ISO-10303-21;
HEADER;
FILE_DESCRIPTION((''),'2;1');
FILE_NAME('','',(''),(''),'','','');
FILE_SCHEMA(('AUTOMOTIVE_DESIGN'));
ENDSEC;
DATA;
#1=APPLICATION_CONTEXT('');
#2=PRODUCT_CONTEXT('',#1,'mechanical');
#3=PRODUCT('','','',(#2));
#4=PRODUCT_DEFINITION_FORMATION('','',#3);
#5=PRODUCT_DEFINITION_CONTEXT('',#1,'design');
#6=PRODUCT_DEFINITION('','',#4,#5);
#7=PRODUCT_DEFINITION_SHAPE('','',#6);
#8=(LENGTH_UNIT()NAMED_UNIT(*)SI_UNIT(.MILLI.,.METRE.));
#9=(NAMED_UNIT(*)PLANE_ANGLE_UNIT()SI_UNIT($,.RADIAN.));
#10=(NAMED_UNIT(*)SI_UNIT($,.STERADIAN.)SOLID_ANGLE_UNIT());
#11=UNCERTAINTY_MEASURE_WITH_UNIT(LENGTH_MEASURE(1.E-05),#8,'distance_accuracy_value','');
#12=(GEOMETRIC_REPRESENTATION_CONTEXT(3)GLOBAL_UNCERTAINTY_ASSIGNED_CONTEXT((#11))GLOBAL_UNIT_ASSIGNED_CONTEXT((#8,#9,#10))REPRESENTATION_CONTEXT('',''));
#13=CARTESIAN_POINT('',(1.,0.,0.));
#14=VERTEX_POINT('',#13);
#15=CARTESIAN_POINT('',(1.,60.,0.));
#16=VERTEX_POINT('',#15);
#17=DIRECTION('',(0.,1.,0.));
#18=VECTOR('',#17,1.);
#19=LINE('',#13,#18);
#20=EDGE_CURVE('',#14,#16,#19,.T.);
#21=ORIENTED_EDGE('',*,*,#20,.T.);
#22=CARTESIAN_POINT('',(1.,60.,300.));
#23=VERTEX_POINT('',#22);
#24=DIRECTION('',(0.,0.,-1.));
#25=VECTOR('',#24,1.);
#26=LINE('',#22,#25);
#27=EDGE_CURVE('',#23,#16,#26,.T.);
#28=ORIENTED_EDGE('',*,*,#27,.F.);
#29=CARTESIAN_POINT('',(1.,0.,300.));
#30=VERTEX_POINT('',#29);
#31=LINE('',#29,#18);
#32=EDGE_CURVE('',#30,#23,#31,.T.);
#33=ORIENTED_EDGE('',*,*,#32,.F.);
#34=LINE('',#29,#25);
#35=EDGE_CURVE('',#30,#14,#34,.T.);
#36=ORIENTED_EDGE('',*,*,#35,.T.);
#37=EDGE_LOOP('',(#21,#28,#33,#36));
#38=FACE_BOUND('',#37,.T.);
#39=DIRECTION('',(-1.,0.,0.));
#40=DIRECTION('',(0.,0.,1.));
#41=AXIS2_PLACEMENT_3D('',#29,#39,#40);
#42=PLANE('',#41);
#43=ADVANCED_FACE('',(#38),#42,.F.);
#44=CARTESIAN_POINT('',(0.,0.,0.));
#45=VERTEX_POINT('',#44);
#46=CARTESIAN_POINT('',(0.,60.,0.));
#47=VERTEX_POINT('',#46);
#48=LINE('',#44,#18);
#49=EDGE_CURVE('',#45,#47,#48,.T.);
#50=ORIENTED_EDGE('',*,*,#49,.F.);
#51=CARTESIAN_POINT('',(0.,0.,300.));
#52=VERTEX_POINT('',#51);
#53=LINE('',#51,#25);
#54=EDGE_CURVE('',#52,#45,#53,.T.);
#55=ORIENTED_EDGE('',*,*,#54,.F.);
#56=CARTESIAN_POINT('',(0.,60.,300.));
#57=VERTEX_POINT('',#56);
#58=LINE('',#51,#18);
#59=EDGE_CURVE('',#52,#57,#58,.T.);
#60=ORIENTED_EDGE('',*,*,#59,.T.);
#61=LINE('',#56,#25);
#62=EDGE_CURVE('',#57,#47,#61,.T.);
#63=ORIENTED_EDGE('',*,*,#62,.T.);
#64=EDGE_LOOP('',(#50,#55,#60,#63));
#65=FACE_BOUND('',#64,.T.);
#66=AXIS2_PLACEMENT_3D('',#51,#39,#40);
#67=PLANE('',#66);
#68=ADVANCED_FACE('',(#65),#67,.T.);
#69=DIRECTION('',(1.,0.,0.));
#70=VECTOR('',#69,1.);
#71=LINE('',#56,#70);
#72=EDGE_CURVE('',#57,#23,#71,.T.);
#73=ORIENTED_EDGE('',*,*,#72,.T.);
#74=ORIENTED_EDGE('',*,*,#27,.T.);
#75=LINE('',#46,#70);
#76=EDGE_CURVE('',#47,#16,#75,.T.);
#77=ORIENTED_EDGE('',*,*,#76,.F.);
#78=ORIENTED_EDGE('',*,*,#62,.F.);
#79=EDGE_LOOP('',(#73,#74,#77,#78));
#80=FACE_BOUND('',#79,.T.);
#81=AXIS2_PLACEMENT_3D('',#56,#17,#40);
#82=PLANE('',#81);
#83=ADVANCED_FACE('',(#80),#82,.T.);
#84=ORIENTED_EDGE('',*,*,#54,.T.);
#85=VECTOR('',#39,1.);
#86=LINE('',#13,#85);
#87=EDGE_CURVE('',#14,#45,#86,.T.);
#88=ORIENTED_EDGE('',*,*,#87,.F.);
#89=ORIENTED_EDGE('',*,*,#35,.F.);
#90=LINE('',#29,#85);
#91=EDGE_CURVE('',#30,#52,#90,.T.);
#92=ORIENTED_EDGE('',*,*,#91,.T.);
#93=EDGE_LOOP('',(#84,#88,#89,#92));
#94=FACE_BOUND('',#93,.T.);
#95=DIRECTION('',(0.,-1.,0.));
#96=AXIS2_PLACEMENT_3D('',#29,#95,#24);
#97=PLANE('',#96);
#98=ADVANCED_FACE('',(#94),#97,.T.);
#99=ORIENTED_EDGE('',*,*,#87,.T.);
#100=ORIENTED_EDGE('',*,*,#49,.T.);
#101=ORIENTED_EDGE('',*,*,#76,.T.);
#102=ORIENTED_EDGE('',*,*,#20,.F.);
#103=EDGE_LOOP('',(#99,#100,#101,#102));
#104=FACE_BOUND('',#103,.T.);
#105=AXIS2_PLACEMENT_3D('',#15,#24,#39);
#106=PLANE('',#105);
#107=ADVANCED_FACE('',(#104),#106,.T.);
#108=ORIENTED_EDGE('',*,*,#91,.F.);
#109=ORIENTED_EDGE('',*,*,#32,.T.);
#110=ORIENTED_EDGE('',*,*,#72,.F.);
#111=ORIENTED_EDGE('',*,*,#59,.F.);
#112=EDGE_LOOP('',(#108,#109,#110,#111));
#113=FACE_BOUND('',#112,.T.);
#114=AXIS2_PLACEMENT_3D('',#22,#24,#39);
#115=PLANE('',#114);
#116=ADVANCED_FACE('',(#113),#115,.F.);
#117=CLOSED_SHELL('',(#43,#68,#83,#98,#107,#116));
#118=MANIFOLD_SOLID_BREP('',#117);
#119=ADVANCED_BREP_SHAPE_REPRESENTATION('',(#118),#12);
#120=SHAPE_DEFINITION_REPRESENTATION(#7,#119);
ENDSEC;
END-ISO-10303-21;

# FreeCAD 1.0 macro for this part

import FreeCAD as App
import Part
import Sketcher
Q = App.Units.Quantity

doc = App.newDocument("Part")
params = doc.addObject("Spreadsheet::Sheet", "Params")
for row, (alias, value) in enumerate([
    ("sketch1_width", "1 mm"),
    ("sketch1_height", "60 mm"),
    ("pad1_length", "300 mm"),
], start=1):
    params.set(f"A{row}", alias)
    params.set(f"B{row}", "=" + value)
    params.setAlias(f"B{row}", alias)

body = doc.addObject("PartDesign::Body", "Body")

sketch1 = body.newObject("Sketcher::SketchObject", "Sketch")
sketch1.AttachmentSupport = (doc.getObject("XY_Plane"), [""])
sketch1.MapMode = "FlatFace"
sketch1.addGeometry(Part.LineSegment(App.Vector(0, 60, 0), App.Vector(0, 0, 0)), False)
sketch1.addGeometry(Part.LineSegment(App.Vector(0, 0, 0), App.Vector(1, 0, 0)), False)
sketch1.addGeometry(Part.LineSegment(App.Vector(1, 0, 0), App.Vector(1, 60, 0)), False)
sketch1.addGeometry(Part.LineSegment(App.Vector(1, 60, 0), App.Vector(0, 60, 0)), False)
sketch1.addConstraint(Sketcher.Constraint("Coincident", 0, 2, 1, 1))
sketch1.addConstraint(Sketcher.Constraint("Coincident", 1, 2, 2, 1))
sketch1.addConstraint(Sketcher.Constraint("Coincident", 2, 2, 3, 1))
sketch1.addConstraint(Sketcher.Constraint("Coincident", 3, 2, 0, 1))
sketch1.addConstraint(Sketcher.Constraint("Vertical", 0))
sketch1.addConstraint(Sketcher.Constraint("Horizontal", 1))
sketch1.addConstraint(Sketcher.Constraint("Vertical", 2))
sketch1.addConstraint(Sketcher.Constraint("Horizontal", 3))
sketch1.addConstraint(Sketcher.Constraint("Coincident", 0, 2, -1, 1))
sketch1.addConstraint(Sketcher.Constraint("DistanceX", 1, 1, 1, 2, Q("1 mm")))
sketch1.addConstraint(Sketcher.Constraint("DistanceY", 0, 2, 0, 1, Q("60 mm")))
sketch1.setExpression("Constraints[9]", "Params.sketch1_width")
sketch1.setExpression("Constraints[10]", "Params.sketch1_height")
pad1 = body.newObject("PartDesign::Pad", "Pad")
pad1.Profile = sketch1
pad1.setExpression("Length", "Params.pad1_length")

doc.recompute()
